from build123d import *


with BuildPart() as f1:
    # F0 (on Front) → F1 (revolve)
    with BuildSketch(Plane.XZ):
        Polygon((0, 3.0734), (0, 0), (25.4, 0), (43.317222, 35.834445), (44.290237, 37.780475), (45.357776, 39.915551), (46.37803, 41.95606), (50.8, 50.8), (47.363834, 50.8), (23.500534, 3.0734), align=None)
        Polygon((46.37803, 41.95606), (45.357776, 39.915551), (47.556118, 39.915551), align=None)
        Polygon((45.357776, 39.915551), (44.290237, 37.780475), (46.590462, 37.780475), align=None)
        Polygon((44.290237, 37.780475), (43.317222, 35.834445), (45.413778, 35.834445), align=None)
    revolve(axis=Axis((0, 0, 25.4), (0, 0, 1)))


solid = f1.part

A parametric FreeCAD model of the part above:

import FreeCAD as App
import Part
import Sketcher
Q = App.Units.Quantity


def add_polygon(sketch, points):
    """Adds a closed chain of lines whose ends are joined by coincident constraints."""
    first, n = sketch.GeometryCount, len(points)
    for a, b in zip(points, points[1:] + points[:1]):
        sketch.addGeometry(Part.LineSegment(App.Vector(*a, 0), App.Vector(*b, 0)), False)
    for i in range(n):
        sketch.addConstraint(Sketcher.Constraint("Coincident", first + i, 2, first + (i + 1) % n, 1))

doc = App.newDocument("Part")
body = doc.addObject("PartDesign::Body", "Body")

# Sketch on XZ plane
sketch1 = body.newObject("Sketcher::SketchObject", "Sketch")
sketch1.AttachmentSupport = (doc.getObject("XZ_Plane"), [""])
sketch1.MapMode = "FlatFace"
add_polygon(sketch1, [(0, 3.1), (0, 0), (25.4, 0), (43.3, 35.8), (45.4, 35.8), (44.3, 37.8), (46.6, 37.8), (45.4, 39.9), (47.6, 39.9), (46.4, 42), (50.8, 50.8), (47.4, 50.8), (23.5, 3.1)])  # lines 0-12
sketch1.addConstraint([
    Sketcher.Constraint("Vertical", 0),
    Sketcher.Constraint("Horizontal", 1),
    Sketcher.Constraint("Horizontal", 3),
    Sketcher.Constraint("Horizontal", 5),
    Sketcher.Constraint("Horizontal", 7),
    Sketcher.Constraint("Horizontal", 10),
    Sketcher.Constraint("Horizontal", 12),
    Sketcher.Constraint("Coincident", 0, 2, -1, 1),
    Sketcher.Constraint("Parallel", 4, 6),
    Sketcher.Constraint("Parallel", 6, 8),
    Sketcher.Constraint("Parallel", 2, 9),
    Sketcher.Constraint("Parallel", 9, 11),
    Sketcher.Constraint("DistanceX", 1, 1, 1, 2, Q("1 in")),
    Sketcher.Constraint("DistanceX", -1, 1, 9, 2, Q("2 in")),
    Sketcher.Constraint("DistanceY", -1, 1, 9, 2, Q("2 in")),
    Sketcher.Constraint("Angle", 4, Q("120.000001 deg")),
    Sketcher.Constraint("DistanceY", 0, 2, 0, 1, Q("0.121 in")),
    Sketcher.Constraint("DistanceX", 7, 1, 7, 2, 2.198342),
    Sketcher.Constraint("DistanceX", 6, 2, 3, 2, 0.056002),
    Sketcher.Constraint("Distance", 4, 2.247082),
    Sketcher.Constraint("Distance", 11, 53.359961),
    Sketcher.Constraint("DistanceX", 3, 1, 3, 2, 2.096556),
    Sketcher.Constraint("DistanceX", 5, 1, 5, 2, 2.300225),
    Sketcher.Constraint("DistanceX", 10, 2, 10, 1, 3.436166),
    Sketcher.Constraint("DistanceY", -1, 1, 6, 2, 39.915551),
])
revolution = body.newObject("PartDesign::Revolution", "Revolution")
revolution.Profile = sketch1
revolution.ReferenceAxis = (sketch1, ["V_Axis"])
revolution.Angle = 360

doc.recompute()
